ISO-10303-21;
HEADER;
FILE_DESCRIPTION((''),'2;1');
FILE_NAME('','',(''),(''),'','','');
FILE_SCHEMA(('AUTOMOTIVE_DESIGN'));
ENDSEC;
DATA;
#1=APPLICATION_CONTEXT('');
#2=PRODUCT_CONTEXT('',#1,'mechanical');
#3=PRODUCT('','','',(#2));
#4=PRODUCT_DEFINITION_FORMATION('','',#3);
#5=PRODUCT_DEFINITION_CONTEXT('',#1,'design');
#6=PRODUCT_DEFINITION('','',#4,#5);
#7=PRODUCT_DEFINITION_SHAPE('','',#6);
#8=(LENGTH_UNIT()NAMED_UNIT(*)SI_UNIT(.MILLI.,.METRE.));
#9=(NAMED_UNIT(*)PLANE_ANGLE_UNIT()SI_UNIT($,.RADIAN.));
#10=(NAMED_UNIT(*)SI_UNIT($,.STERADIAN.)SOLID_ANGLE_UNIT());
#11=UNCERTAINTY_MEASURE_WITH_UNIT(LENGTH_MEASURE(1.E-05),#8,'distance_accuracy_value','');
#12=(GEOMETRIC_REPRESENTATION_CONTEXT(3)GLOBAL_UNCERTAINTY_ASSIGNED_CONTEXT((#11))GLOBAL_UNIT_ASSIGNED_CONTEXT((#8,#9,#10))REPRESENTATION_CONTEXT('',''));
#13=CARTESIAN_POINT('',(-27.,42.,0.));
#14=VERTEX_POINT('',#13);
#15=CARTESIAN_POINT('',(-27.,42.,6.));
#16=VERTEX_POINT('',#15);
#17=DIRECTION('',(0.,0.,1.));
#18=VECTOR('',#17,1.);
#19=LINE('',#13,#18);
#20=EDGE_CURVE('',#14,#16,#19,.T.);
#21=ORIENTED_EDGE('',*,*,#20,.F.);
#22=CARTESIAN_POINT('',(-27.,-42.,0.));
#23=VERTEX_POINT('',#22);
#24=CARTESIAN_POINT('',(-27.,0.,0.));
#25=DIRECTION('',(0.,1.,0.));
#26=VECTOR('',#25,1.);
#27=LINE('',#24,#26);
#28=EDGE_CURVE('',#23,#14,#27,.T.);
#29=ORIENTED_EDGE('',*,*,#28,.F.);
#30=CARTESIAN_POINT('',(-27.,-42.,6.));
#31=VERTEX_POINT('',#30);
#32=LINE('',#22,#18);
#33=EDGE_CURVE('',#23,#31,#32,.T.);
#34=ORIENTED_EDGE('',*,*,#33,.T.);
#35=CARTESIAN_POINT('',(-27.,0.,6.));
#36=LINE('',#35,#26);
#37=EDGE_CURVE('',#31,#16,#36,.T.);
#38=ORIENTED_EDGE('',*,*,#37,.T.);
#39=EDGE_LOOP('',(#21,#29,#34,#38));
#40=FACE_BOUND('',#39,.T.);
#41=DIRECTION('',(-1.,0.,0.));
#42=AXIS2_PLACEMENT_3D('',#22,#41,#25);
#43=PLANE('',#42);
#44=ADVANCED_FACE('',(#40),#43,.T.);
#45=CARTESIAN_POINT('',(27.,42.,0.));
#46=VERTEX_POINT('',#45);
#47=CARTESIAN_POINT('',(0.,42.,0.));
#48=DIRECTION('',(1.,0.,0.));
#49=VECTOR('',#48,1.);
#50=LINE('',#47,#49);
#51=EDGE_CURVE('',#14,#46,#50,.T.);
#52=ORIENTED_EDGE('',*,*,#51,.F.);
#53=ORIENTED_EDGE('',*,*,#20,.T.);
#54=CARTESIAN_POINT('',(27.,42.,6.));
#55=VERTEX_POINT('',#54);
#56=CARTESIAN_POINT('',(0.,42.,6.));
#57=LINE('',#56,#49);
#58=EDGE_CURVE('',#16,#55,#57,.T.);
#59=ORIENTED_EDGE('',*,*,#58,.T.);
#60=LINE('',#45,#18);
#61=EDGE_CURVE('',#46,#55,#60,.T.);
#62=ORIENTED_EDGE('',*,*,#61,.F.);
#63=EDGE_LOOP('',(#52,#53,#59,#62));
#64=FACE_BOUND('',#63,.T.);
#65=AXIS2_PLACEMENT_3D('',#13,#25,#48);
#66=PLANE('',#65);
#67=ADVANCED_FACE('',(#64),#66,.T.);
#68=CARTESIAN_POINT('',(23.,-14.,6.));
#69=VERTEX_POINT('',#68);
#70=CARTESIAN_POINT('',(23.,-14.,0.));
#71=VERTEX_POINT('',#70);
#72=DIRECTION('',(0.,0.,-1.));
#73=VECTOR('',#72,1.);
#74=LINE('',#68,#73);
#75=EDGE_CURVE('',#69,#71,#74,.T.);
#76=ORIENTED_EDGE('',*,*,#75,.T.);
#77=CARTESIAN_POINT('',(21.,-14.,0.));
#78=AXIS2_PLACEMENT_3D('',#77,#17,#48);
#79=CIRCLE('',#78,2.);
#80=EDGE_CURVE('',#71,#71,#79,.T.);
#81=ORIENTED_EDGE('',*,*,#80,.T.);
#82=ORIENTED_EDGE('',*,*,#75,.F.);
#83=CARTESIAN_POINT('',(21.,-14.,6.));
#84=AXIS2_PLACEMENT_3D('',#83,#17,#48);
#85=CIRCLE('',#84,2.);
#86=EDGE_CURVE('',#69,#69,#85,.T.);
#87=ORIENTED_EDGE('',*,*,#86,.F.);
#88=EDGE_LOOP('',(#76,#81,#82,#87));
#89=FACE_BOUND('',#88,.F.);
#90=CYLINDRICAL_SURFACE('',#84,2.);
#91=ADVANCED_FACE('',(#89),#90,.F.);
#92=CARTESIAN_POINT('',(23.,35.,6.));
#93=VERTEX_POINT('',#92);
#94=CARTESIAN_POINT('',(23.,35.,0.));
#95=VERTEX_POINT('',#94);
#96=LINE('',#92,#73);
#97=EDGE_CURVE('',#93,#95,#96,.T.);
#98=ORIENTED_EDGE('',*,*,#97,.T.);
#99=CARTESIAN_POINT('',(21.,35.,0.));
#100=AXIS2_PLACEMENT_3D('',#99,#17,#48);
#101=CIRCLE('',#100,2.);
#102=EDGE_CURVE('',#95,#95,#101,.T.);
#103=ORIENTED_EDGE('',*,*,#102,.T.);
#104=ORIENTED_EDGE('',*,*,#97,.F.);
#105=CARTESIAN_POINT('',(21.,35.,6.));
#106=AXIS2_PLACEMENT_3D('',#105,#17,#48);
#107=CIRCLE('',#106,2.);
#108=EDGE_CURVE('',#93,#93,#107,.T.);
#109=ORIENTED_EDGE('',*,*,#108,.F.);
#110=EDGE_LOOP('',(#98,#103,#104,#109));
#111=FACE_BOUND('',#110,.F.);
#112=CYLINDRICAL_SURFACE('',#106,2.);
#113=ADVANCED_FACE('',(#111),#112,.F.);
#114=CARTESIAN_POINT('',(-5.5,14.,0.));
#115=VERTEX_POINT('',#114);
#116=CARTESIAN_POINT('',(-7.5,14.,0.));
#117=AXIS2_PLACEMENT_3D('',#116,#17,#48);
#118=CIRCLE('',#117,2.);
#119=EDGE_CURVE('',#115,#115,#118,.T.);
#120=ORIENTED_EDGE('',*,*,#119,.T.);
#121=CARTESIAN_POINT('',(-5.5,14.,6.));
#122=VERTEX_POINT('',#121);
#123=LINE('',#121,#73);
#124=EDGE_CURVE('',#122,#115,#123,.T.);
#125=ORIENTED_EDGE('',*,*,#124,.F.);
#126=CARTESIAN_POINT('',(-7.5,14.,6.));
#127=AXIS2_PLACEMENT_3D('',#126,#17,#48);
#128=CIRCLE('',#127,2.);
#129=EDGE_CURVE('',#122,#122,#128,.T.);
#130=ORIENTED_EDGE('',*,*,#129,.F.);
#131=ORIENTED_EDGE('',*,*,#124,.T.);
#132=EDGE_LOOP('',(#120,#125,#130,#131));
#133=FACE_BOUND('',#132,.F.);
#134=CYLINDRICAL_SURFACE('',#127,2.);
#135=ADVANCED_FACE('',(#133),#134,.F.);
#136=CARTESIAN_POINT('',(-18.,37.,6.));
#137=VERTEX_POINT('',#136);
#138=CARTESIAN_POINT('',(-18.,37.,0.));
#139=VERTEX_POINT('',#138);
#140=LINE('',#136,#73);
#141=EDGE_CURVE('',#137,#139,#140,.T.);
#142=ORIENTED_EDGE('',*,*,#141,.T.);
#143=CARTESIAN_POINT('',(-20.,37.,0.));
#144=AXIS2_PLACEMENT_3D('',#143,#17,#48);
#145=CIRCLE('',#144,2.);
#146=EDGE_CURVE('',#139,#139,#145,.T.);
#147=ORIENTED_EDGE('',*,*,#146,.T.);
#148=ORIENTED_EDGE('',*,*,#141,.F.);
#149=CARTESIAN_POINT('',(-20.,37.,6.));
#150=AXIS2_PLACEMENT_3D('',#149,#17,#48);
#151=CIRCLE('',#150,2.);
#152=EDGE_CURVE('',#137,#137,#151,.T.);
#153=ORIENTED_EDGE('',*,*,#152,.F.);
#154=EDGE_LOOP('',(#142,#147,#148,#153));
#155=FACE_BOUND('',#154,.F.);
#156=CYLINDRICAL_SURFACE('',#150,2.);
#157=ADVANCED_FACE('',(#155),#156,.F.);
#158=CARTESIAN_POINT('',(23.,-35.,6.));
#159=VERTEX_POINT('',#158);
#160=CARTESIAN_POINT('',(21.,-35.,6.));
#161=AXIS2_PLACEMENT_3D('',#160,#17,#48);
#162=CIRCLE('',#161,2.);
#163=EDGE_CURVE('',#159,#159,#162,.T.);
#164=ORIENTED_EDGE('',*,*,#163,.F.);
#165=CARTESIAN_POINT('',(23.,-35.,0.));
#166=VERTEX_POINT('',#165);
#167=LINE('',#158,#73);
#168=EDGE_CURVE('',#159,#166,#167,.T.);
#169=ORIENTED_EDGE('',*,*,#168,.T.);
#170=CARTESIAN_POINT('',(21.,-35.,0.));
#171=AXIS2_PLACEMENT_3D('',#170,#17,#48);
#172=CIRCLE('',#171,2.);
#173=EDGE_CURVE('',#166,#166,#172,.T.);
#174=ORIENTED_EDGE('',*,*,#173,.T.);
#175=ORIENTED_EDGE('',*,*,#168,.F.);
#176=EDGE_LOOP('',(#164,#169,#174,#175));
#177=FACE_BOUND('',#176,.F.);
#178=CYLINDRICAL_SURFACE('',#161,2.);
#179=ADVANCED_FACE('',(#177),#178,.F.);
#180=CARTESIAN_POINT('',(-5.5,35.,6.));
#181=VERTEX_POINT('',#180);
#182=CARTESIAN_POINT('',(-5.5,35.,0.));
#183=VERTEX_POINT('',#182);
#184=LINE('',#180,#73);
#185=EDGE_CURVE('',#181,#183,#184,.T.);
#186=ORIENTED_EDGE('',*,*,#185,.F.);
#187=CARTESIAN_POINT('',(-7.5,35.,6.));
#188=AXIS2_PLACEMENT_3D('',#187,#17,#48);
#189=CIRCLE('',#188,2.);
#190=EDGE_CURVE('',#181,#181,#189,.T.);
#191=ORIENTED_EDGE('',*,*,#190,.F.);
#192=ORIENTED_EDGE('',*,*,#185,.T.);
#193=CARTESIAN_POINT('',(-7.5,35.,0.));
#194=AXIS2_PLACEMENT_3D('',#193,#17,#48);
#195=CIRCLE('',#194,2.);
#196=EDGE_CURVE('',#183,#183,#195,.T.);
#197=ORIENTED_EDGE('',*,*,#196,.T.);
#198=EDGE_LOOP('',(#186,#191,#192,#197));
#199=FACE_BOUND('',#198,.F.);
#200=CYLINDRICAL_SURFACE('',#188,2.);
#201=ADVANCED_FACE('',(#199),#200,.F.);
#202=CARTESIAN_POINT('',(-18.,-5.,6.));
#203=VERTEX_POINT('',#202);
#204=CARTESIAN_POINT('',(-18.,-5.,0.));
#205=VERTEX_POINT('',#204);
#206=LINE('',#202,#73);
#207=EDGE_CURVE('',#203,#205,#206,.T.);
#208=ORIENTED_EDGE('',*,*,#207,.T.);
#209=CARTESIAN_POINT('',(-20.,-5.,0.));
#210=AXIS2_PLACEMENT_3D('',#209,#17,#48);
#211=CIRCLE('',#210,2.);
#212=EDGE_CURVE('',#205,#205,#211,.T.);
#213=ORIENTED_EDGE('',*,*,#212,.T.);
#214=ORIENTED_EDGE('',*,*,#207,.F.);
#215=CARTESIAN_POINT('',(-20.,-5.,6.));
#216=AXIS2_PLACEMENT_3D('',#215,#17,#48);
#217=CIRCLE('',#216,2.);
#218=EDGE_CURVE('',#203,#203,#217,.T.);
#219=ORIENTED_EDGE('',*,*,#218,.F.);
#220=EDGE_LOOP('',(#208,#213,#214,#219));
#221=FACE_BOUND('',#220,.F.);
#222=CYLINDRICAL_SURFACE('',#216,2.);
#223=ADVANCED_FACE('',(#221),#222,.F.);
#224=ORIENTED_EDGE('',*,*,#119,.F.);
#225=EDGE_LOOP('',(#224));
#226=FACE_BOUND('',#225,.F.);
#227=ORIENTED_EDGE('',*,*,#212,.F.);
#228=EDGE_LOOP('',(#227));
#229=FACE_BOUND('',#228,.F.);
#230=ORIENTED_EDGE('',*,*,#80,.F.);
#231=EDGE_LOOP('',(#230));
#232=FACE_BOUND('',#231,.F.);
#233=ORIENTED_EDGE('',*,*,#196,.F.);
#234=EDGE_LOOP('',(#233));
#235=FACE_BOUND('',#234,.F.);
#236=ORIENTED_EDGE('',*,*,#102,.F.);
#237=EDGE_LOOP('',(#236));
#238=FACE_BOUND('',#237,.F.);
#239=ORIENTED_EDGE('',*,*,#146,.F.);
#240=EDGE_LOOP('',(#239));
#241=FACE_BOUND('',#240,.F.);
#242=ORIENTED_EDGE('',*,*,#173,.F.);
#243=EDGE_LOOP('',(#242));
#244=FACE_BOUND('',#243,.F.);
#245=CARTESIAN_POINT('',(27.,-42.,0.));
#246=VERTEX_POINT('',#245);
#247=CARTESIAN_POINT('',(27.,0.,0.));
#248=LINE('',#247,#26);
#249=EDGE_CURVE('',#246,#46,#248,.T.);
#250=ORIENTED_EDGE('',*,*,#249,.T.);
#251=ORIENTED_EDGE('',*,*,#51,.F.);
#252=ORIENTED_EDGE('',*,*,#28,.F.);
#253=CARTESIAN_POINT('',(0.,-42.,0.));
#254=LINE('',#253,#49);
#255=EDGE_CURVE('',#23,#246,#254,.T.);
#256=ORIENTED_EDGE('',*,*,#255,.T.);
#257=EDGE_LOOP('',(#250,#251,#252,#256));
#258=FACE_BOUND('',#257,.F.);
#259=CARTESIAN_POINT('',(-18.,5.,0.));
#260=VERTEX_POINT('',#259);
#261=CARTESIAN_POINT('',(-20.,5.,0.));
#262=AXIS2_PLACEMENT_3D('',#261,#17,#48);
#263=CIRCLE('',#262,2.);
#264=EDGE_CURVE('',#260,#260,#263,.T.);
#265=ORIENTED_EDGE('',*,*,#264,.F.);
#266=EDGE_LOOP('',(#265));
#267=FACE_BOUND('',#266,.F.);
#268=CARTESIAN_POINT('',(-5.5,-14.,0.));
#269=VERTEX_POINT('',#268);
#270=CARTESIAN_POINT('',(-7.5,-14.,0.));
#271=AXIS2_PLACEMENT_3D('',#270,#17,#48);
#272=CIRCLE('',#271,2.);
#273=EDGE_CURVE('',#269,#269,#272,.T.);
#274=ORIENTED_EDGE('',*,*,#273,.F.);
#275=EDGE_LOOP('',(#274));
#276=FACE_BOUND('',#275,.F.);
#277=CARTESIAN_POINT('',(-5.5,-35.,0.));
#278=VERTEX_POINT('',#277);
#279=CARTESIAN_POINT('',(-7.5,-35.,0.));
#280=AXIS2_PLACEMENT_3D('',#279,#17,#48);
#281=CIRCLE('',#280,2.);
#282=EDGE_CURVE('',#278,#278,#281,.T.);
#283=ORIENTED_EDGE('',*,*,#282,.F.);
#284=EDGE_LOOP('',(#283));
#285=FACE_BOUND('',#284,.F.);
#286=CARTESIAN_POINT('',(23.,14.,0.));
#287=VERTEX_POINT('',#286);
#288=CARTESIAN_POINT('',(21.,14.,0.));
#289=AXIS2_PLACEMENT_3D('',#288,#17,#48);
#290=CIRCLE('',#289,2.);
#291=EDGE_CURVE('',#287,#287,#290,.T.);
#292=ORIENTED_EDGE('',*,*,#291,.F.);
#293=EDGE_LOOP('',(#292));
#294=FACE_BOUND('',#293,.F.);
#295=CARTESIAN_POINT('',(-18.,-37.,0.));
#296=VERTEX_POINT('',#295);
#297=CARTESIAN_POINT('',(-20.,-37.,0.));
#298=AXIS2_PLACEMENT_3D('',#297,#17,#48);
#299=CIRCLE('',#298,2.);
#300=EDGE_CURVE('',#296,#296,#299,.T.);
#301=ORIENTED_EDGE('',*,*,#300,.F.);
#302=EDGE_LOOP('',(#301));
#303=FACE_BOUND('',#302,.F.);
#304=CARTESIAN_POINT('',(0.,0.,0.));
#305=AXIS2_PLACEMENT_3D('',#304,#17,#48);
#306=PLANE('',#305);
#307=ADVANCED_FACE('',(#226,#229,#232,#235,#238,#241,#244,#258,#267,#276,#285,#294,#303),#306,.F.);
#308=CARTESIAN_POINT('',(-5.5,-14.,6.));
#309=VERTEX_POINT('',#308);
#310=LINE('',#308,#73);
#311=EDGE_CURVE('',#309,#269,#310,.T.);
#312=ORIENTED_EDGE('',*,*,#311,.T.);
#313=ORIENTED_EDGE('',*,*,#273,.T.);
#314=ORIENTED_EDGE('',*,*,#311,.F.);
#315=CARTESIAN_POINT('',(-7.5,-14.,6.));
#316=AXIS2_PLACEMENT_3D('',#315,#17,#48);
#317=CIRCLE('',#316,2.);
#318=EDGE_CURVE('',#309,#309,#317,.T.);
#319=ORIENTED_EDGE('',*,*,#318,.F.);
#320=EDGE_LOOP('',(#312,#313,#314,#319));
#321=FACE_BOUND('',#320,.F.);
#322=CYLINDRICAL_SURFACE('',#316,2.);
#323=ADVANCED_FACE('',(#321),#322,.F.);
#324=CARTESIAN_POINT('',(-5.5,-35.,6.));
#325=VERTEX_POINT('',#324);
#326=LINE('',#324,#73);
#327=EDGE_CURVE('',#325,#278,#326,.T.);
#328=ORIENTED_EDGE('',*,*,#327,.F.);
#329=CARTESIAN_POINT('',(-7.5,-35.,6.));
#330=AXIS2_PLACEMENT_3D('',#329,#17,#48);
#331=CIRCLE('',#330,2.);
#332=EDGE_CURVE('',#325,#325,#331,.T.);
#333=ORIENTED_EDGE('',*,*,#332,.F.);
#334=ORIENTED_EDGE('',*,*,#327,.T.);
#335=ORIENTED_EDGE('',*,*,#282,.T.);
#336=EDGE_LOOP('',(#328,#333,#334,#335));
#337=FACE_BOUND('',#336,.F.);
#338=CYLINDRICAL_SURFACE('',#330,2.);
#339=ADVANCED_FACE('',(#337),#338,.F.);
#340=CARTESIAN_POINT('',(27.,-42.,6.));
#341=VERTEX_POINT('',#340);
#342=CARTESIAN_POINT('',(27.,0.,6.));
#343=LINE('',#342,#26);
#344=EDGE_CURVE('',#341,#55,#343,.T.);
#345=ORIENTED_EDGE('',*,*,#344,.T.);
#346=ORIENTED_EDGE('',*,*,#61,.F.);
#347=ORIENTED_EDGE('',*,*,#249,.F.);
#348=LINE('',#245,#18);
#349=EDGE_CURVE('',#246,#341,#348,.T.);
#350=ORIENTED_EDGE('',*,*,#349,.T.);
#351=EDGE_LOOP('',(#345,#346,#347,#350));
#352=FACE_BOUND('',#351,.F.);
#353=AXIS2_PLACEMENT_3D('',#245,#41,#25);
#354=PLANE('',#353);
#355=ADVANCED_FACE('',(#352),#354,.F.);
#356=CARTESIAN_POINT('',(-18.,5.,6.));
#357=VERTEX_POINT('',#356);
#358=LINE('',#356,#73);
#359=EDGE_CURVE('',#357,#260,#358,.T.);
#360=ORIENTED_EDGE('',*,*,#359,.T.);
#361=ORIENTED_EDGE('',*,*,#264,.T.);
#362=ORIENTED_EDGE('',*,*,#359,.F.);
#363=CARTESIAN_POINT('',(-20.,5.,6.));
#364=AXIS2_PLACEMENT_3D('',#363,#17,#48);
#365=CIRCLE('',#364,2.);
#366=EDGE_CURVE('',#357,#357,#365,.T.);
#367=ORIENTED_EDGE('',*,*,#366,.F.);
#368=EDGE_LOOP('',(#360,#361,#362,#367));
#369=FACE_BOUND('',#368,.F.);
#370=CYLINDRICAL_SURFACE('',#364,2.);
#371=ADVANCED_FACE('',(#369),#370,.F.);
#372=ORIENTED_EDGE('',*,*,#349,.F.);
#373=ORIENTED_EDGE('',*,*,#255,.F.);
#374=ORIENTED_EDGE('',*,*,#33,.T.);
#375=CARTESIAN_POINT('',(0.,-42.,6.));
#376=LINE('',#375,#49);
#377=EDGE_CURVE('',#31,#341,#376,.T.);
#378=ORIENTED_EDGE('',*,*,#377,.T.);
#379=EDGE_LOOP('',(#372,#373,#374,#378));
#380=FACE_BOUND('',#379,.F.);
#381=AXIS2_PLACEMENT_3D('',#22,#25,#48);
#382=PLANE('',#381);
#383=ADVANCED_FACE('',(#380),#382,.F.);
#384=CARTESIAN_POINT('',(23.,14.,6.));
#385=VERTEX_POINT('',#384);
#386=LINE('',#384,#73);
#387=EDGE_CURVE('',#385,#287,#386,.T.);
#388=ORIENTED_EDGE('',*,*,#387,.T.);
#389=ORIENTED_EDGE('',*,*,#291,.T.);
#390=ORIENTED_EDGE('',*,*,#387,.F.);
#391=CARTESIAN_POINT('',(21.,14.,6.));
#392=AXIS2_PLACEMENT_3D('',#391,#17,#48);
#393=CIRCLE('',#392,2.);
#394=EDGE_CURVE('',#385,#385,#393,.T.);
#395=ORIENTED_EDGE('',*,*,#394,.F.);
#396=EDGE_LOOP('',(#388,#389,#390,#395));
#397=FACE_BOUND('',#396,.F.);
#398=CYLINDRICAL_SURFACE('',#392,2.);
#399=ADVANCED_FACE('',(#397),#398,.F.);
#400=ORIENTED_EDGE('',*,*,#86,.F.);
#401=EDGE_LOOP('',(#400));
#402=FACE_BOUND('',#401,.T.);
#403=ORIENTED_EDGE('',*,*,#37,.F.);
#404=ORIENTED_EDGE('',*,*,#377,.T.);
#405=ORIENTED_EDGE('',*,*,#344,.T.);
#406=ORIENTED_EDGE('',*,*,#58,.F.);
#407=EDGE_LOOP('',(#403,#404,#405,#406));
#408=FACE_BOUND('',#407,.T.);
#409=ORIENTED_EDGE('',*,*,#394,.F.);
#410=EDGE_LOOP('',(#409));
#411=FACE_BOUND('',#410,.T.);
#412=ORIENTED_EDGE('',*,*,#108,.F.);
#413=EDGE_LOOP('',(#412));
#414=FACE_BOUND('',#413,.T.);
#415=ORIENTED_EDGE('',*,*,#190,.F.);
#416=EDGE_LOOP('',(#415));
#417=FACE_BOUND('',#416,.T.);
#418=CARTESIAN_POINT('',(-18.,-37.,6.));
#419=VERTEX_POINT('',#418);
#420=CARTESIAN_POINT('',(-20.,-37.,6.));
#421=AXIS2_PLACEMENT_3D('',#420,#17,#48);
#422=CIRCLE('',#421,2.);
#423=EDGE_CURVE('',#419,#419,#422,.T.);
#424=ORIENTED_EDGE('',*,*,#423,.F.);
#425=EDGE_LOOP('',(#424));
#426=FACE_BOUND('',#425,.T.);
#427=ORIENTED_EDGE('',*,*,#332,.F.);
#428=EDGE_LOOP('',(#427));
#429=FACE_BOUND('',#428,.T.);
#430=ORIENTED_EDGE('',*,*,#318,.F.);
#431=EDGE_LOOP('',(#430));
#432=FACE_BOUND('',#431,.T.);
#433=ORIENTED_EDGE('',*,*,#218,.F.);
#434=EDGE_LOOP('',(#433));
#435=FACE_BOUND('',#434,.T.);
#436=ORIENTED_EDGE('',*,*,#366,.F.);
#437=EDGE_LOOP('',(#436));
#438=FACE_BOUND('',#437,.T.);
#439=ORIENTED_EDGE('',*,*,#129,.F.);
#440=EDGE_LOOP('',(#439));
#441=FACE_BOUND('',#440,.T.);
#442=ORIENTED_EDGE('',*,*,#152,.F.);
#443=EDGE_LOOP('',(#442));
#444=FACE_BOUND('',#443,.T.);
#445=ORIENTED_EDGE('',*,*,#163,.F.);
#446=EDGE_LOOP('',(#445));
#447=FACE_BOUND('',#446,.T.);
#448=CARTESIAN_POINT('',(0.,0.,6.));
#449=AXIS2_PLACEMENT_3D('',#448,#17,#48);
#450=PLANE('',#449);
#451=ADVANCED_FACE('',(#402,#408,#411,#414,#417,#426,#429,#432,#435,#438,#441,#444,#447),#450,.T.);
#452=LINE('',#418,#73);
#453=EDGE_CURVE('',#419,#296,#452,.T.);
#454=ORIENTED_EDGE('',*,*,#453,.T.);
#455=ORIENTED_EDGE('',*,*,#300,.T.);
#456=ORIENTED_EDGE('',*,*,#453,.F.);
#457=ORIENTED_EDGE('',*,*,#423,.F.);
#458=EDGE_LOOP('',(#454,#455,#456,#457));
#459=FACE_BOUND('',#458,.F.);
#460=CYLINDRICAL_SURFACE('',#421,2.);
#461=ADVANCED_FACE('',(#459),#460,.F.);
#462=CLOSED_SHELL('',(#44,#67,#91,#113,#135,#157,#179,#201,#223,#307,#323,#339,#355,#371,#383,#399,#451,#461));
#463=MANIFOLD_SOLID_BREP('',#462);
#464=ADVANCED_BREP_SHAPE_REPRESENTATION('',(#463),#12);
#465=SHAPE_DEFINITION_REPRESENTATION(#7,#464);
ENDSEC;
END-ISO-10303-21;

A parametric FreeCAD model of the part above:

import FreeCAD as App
import Part
import Sketcher


def add_polygon(sketch, points):
    """Adds a closed chain of lines whose ends are joined by coincident constraints."""
    first, n = sketch.GeometryCount, len(points)
    for a, b in zip(points, points[1:] + points[:1]):
        sketch.addGeometry(Part.LineSegment(App.Vector(*a, 0), App.Vector(*b, 0)), False)
    for i in range(n):
        sketch.addConstraint(Sketcher.Constraint("Coincident", first + i, 2, first + (i + 1) % n, 1))

doc = App.newDocument("Part")
body = doc.addObject("PartDesign::Body", "Body")

# Sketch on XY plane
sketch1 = doc.addObject("Sketcher::SketchObject", "Sketch")
body.addObject(sketch1)
sketch1.AttachmentSupport = (doc.XY_Plane, [""])
sketch1.MapMode = "FlatFace"
add_polygon(sketch1, [(-27, 42), (-27, -42), (27, -42), (27, 42)])  # lines 0-3
sketch1.addConstraint(Sketcher.Constraint("Vertical", 0))
sketch1.addConstraint(Sketcher.Constraint("Horizontal", 1))
sketch1.addConstraint(Sketcher.Constraint("Vertical", 2))
sketch1.addConstraint(Sketcher.Constraint("Horizontal", 3))
sketch1.addConstraint(Sketcher.Constraint("Symmetric", 0, 2, 2, 2, -1, 1))
sketch1.addConstraint(Sketcher.Constraint("DistanceX", 1, 1, 1, 2, 54.0))
sketch1.addConstraint(Sketcher.Constraint("DistanceY", 0, 2, 0, 1, 84.0))
pad1 = doc.addObject("PartDesign::Pad", "Pad")
body.addObject(pad1)
pad1.Profile = sketch1
pad1.Length = 6

# Sketch on XY plane
sketch2 = doc.addObject("Sketcher::SketchObject", "Sketch001")
body.addObject(sketch2)
sketch2.AttachmentSupport = (doc.XY_Plane, [""])
sketch2.MapMode = "FlatFace"
sketch2.AttachmentOffset = App.Placement(App.Vector(0, 0, 6), App.Rotation())
sketch2.addGeometry(Part.Circle(App.Vector(-7.5, 14, 0), App.Vector(0, 0, 1), 2), False)
sketch2.addGeometry(Part.Circle(App.Vector(-7.5, -14, 0), App.Vector(0, 0, 1), 2), False)
sketch2.addGeometry(Part.Circle(App.Vector(-20, 5, 0), App.Vector(0, 0, 1), 2), False)
sketch2.addGeometry(Part.Circle(App.Vector(-20, -5, 0), App.Vector(0, 0, 1), 2), False)
sketch2.addGeometry(Part.Circle(App.Vector(21, 14, 0), App.Vector(0, 0, 1), 2), False)
sketch2.addGeometry(Part.Circle(App.Vector(21, -14, 0), App.Vector(0, 0, 1), 2), False)
sketch2.addGeometry(Part.Circle(App.Vector(21, -35, 0), App.Vector(0, 0, 1), 2), False)
sketch2.addGeometry(Part.Circle(App.Vector(21, 35, 0), App.Vector(0, 0, 1), 2), False)
sketch2.addGeometry(Part.Circle(App.Vector(-20, 37, 0), App.Vector(0, 0, 1), 2), False)
sketch2.addGeometry(Part.Circle(App.Vector(-7.5, 35, 0), App.Vector(0, 0, 1), 2), False)
sketch2.addGeometry(Part.Circle(App.Vector(-20, -37, 0), App.Vector(0, 0, 1), 2), False)
sketch2.addGeometry(Part.Circle(App.Vector(-7.5, -35, 0), App.Vector(0, 0, 1), 2), False)
sketch2.addConstraint(Sketcher.Constraint("Equal", 0, 1))
sketch2.addConstraint(Sketcher.Constraint("Equal", 1, 2))
sketch2.addConstraint(Sketcher.Constraint("Equal", 2, 3))
sketch2.addConstraint(Sketcher.Constraint("Equal", 3, 4))
sketch2.addConstraint(Sketcher.Constraint("Equal", 4, 5))
sketch2.addConstraint(Sketcher.Constraint("Equal", 5, 6))
sketch2.addConstraint(Sketcher.Constraint("Equal", 6, 7))
sketch2.addConstraint(Sketcher.Constraint("Equal", 7, 8))
sketch2.addConstraint(Sketcher.Constraint("Equal", 8, 9))
sketch2.addConstraint(Sketcher.Constraint("Equal", 9, 10))
sketch2.addConstraint(Sketcher.Constraint("Equal", 10, 11))
sketch2.addConstraint(Sketcher.Constraint("Symmetric", 0, 3, 1, 3, -1))
sketch2.addConstraint(Sketcher.Constraint("Symmetric", 2, 3, 3, 3, -1))
sketch2.addConstraint(Sketcher.Constraint("Symmetric", 4, 3, 5, 3, -1))
sketch2.addConstraint(Sketcher.Constraint("Symmetric", 6, 3, 7, 3, -1))
sketch2.addConstraint(Sketcher.Constraint("Symmetric", 8, 3, 10, 3, -1))
sketch2.addConstraint(Sketcher.Constraint("Symmetric", 9, 3, 11, 3, -1))
sketch2.addConstraint(Sketcher.Constraint("Horizontal", 0, 3, 4, 3))
sketch2.addConstraint(Sketcher.Constraint("Horizontal", 7, 3, 9, 3))
sketch2.addConstraint(Sketcher.Constraint("Vertical", 5, 3, 6, 3))
sketch2.addConstraint(Sketcher.Constraint("Vertical", 3, 3, 8, 3))
sketch2.addConstraint(Sketcher.Constraint("Vertical", 1, 3, 9, 3))
sketch2.addConstraint(Sketcher.Constraint("Diameter", 0, 4.0))
sketch2.addConstraint(Sketcher.Constraint("DistanceY", -1, 1, 0, 3, 14.0))
sketch2.addConstraint(Sketcher.Constraint("DistanceX", 2, 3, -1, 1, 20.0))
sketch2.addConstraint(Sketcher.Constraint("DistanceY", -1, 1, 2, 3, 5.0))
sketch2.addConstraint(Sketcher.Constraint("DistanceX", -1, 1, 4, 3, 21.0))
sketch2.addConstraint(Sketcher.Constraint("DistanceY", 6, 3, -1, 1, 35.0))
sketch2.addConstraint(Sketcher.Constraint("DistanceY", -1, 1, 8, 3, 37.0))
sketch2.addConstraint(Sketcher.Constraint("DistanceX", 0, 3, -1, 1, 7.5))
pocket1 = doc.addObject("PartDesign::Pocket", "Pocket")
body.addObject(pocket1)
pocket1.Profile = sketch2
pocket1.Type = "ThroughAll"

doc.recompute()
